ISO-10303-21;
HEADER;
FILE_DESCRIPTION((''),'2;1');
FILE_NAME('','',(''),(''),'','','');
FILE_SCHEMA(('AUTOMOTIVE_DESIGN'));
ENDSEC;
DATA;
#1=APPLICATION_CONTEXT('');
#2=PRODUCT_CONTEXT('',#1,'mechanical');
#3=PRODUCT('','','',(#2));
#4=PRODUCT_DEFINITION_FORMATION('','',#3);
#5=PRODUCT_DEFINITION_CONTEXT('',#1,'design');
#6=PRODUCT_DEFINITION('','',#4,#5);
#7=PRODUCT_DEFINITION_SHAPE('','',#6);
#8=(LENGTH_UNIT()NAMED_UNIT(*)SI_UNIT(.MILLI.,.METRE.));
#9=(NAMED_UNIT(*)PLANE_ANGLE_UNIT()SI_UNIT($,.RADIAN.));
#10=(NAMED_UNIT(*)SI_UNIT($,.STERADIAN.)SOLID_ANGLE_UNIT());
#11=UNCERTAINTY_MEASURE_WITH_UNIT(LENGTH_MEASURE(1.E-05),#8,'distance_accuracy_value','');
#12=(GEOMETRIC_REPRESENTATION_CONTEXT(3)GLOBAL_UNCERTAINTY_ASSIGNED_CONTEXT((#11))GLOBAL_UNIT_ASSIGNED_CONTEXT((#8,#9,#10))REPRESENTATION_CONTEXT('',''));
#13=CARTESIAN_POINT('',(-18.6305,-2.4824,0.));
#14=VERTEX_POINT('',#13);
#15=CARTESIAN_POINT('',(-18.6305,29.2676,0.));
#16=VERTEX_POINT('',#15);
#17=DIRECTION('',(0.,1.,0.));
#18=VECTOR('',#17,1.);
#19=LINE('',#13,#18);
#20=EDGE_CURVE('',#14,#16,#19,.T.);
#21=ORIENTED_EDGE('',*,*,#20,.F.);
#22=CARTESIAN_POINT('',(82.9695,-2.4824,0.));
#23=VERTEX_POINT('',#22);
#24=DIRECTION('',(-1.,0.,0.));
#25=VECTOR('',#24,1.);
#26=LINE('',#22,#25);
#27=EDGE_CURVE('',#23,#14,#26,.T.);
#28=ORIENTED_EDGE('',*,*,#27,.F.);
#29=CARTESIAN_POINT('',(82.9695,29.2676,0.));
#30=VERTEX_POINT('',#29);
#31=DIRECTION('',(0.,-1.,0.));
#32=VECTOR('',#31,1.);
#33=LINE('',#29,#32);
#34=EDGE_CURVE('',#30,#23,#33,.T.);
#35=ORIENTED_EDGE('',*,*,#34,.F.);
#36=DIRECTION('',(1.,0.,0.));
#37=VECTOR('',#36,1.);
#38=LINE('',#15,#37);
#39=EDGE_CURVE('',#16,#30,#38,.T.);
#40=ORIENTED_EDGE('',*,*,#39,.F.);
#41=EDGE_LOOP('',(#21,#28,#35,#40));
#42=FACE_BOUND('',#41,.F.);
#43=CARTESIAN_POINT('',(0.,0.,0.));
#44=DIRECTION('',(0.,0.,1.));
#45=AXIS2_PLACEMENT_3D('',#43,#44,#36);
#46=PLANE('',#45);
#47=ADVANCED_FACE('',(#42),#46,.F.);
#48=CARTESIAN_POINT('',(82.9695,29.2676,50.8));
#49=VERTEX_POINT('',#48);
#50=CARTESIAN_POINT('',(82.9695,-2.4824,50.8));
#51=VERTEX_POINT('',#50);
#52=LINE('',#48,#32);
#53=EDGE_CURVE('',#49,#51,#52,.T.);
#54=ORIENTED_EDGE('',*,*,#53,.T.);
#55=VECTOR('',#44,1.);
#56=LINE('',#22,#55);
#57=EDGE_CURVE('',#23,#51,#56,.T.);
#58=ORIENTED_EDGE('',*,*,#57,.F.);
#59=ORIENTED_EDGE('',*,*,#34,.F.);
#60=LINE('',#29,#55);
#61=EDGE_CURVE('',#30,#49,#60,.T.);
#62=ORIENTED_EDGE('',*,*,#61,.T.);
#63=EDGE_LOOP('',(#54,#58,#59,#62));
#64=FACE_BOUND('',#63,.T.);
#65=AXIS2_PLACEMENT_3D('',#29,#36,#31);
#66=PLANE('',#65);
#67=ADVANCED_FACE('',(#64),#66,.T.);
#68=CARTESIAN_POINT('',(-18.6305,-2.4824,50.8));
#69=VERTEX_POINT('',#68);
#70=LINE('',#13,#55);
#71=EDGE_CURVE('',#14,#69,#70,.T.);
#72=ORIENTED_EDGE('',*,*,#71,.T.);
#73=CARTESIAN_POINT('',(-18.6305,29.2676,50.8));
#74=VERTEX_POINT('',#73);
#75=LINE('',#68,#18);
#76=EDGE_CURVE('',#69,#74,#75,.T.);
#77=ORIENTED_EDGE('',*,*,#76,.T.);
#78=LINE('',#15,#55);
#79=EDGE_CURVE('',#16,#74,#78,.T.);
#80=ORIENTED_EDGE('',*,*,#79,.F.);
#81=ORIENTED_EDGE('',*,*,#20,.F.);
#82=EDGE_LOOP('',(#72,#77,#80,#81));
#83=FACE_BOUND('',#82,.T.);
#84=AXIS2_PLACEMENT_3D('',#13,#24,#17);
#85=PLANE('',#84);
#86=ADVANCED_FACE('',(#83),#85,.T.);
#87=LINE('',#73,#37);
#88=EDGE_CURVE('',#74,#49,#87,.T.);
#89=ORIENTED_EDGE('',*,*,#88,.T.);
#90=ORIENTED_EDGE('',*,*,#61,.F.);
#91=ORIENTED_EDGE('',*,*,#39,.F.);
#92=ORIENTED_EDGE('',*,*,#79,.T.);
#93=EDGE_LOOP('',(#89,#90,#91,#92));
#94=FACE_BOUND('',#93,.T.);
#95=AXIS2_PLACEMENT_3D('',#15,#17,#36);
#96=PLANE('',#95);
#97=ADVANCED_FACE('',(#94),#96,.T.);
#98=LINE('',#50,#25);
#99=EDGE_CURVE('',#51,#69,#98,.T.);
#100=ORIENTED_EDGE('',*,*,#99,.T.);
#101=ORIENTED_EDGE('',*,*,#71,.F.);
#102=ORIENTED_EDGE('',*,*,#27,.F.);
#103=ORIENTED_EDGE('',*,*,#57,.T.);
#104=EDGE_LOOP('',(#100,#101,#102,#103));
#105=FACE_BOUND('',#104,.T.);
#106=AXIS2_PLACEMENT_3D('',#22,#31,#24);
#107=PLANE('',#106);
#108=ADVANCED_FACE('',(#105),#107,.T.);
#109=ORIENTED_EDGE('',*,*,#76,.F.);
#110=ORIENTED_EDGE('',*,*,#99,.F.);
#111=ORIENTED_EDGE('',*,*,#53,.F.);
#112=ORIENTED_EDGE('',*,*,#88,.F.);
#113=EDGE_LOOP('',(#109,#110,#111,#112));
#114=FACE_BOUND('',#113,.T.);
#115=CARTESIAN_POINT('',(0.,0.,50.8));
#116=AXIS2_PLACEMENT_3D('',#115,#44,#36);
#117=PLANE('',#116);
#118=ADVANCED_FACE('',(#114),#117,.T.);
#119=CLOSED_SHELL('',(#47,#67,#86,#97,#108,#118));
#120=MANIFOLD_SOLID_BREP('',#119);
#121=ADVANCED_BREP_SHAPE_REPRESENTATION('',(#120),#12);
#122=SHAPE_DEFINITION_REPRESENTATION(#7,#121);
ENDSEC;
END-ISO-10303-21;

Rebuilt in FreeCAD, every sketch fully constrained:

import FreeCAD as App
import Part
import Sketcher
Q = App.Units.Quantity

doc = App.newDocument("Part")
params = doc.addObject("Spreadsheet::Sheet", "Params")
for row, (alias, value) in enumerate([
    ("sketch1_width", "4 in"),
    ("sketch1_height", "1.25 in"),
    ("pad1_length", "2 in"),
], start=1):
    params.set(f"A{row}", alias)
    params.set(f"B{row}", "=" + value)
    params.setAlias(f"B{row}", alias)

body = doc.addObject("PartDesign::Body", "Body")

# Sketch on XY plane
sketch1 = body.newObject("Sketcher::SketchObject", "Sketch")
sketch1.AttachmentSupport = (doc.getObject("XY_Plane"), [""])
sketch1.MapMode = "FlatFace"
sketch1.addGeometry([
    Part.LineSegment(App.Vector(83, 29, 0), App.Vector(-19, 29, 0)),
    Part.LineSegment(App.Vector(-19, 29, 0), App.Vector(-19, -2, 0)),
    Part.LineSegment(App.Vector(-19, -2, 0), App.Vector(83, -2, 0)),
    Part.LineSegment(App.Vector(83, -2, 0), App.Vector(83, 29, 0)),
], False)
sketch1.addConstraint([
    Sketcher.Constraint("Coincident", 0, 2, 1, 1),
    Sketcher.Constraint("Coincident", 1, 2, 2, 1),
    Sketcher.Constraint("Coincident", 2, 2, 3, 1),
    Sketcher.Constraint("Coincident", 3, 2, 0, 1),
    Sketcher.Constraint("Horizontal", 0),
    Sketcher.Constraint("Vertical", 1),
    Sketcher.Constraint("Horizontal", 2),
    Sketcher.Constraint("Vertical", 3),
    Sketcher.Constraint("DistanceX", 0, 2, 0, 1, Q("4 in")),
    Sketcher.Constraint("DistanceY", 1, 2, 1, 1, Q("1.25 in")),
    Sketcher.Constraint("DistanceX", 0, 2, -1, 1, Q("18.6305 mm")),
    Sketcher.Constraint("DistanceY", -1, 1, 0, 2, Q("29.2676 mm")),
])
sketch1.setExpression("Constraints[8]", "Params.sketch1_width")
sketch1.setExpression("Constraints[9]", "Params.sketch1_height")
pad1 = body.newObject("PartDesign::Pad", "Pad")
pad1.Profile = sketch1
pad1.setExpression("Length", "Params.pad1_length")

doc.recompute()
